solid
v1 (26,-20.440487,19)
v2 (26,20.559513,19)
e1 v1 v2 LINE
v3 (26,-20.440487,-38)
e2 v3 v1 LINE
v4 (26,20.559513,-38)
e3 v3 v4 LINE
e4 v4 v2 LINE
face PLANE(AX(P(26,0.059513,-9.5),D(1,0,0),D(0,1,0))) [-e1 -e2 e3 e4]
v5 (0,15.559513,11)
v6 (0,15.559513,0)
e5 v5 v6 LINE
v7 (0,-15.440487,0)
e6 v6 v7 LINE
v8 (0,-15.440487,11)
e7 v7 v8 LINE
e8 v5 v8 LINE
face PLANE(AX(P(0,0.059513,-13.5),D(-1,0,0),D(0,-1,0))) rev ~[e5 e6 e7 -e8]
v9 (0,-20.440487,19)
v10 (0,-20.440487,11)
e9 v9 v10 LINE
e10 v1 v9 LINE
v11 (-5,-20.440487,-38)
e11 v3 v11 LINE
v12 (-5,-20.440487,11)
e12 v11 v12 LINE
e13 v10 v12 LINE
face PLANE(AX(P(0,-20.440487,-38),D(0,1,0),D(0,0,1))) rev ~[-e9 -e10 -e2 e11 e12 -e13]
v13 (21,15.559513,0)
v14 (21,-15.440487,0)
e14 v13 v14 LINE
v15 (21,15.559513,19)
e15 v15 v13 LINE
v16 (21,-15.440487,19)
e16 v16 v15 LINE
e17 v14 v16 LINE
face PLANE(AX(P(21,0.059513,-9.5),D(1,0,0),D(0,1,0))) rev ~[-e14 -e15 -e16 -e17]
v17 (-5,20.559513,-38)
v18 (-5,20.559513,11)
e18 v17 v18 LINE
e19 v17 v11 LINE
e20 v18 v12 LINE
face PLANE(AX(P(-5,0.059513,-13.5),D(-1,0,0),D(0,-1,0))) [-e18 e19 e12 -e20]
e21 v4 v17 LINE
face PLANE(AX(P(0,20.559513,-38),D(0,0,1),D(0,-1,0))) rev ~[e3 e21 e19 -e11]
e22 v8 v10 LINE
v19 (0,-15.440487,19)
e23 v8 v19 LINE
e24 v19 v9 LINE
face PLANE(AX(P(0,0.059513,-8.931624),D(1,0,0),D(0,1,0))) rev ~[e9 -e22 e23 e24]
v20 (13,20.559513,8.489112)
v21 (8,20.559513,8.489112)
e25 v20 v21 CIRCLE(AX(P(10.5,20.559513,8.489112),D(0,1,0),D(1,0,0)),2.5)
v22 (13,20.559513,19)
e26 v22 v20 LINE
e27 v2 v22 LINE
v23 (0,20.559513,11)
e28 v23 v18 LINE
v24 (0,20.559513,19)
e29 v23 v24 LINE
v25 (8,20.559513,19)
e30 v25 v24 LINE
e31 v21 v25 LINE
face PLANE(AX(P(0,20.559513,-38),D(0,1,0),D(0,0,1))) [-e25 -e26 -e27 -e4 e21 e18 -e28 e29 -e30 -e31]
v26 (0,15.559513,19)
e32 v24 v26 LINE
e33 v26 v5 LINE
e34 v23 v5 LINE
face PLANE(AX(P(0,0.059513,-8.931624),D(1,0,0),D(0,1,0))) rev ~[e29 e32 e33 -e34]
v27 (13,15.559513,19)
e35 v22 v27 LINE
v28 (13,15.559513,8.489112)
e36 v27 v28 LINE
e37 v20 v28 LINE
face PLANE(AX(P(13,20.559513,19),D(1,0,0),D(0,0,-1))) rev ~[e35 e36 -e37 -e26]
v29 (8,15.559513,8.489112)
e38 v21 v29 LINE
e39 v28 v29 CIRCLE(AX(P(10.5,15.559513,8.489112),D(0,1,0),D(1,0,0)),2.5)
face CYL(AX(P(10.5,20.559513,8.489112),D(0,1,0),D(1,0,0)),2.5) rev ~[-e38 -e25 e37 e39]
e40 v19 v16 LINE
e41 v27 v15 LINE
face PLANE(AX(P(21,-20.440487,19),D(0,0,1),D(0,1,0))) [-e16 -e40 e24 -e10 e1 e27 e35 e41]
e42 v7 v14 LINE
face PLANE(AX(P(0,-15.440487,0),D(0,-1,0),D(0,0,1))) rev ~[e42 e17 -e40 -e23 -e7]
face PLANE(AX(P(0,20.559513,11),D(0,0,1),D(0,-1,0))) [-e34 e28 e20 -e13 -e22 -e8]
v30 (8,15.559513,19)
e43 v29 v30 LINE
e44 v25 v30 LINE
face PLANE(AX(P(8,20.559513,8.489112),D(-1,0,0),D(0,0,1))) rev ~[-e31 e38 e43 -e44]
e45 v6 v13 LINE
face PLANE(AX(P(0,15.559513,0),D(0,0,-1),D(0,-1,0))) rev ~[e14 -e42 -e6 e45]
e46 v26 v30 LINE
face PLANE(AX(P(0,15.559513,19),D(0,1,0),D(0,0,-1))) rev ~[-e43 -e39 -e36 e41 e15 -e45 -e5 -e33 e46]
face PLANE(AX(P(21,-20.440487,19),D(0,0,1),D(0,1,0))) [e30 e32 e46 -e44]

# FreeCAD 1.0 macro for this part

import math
import FreeCAD as App
import Part
import Sketcher
from FreeCAD import Vector
Q = App.Units.Quantity


def add_polygon(sketch, points):
    """Adds a closed chain of lines whose ends are joined by coincident constraints."""
    first, n = sketch.GeometryCount, len(points)
    for a, b in zip(points, points[1:] + points[:1]):
        sketch.addGeometry(Part.LineSegment(App.Vector(*a, 0), App.Vector(*b, 0)), False)
    for i in range(n):
        sketch.addConstraint(Sketcher.Constraint("Coincident", first + i, 2, first + (i + 1) % n, 1))

doc = App.newDocument("Part")
body = doc.addObject("PartDesign::Body", "Body")

# Sketch on YZ plane
sketch1 = body.newObject("Sketcher::SketchObject", "Sketch")
sketch1.AttachmentSupport = (doc.getObject("YZ_Plane"), [""])
sketch1.MapMode = "FlatFace"
add_polygon(sketch1, [(15.6, 19), (15.6, 0), (-15.4, 0), (-15.4, 19), (-20.4, 19), (-20.4, -38), (20.6, -38), (20.6, 19)])  # lines 0-7
sketch1.addConstraint([
    Sketcher.Constraint("Vertical", 0),
    Sketcher.Constraint("Horizontal", 1),
    Sketcher.Constraint("Vertical", 2),
    Sketcher.Constraint("Horizontal", 3),
    Sketcher.Constraint("Vertical", 4),
    Sketcher.Constraint("Horizontal", 5),
    Sketcher.Constraint("Vertical", 6),
    Sketcher.Constraint("Horizontal", 7),
    Sketcher.Constraint("PointOnObject", 0, 2, -1),
    Sketcher.Constraint("Horizontal", 3, 2, 6, 2),
    Sketcher.Constraint("Equal", 3, 7),
    Sketcher.Constraint("DistanceX", 1, 2, 1, 1, Q("31 mm")),
    Sketcher.Constraint("DistanceX", 3, 2, 3, 1, Q("5 mm")),
    Sketcher.Constraint("DistanceY", 0, 2, 0, 1, Q("19 mm")),
    Sketcher.Constraint("DistanceY", 4, 2, 4, 1, Q("57 mm")),
    Sketcher.Constraint("DistanceX", -1, 1, 0, 2, Q("15.559513 mm")),
])
pad1 = body.newObject("PartDesign::Pad", "Pad")
pad1.Profile = sketch1
pad1.Length = 21

# Sketch on YZ plane
sketch2 = body.newObject("Sketcher::SketchObject", "Sketch001")
sketch2.AttachmentSupport = (doc.getObject("YZ_Plane"), [""])
sketch2.MapMode = "FlatFace"
sketch2.AttachmentOffset = App.Placement(Vector(0, 0, 21), App.Rotation())
add_polygon(sketch2, [(-20, 19), (-20, -38), (21, -38), (21, 19)])  # lines 0-3
sketch2.addConstraint([
    Sketcher.Constraint("Vertical", 0),
    Sketcher.Constraint("Horizontal", 1),
    Sketcher.Constraint("Vertical", 2),
    Sketcher.Constraint("Horizontal", 3),
    Sketcher.Constraint("DistanceX", 1, 1, 1, 2, Q("41 mm")),
    Sketcher.Constraint("DistanceY", 0, 2, 0, 1, Q("57 mm")),
    Sketcher.Constraint("DistanceY", 0, 2, -1, 1, Q("38 mm")),
    Sketcher.Constraint("DistanceX", 0, 2, -1, 1, Q("20.440487 mm")),
])
pad2 = body.newObject("PartDesign::Pad", "Pad001")
pad2.Profile = sketch2
pad2.Length = 5

# Sketch on YZ plane
sketch3 = body.newObject("Sketcher::SketchObject", "Sketch002")
sketch3.AttachmentSupport = (doc.getObject("YZ_Plane"), [""])
sketch3.MapMode = "FlatFace"
add_polygon(sketch3, [(21, 11), (21, -38), (-20, -38), (-20, 11)])  # lines 0-3
sketch3.addConstraint([
    Sketcher.Constraint("Vertical", 0),
    Sketcher.Constraint("Horizontal", 1),
    Sketcher.Constraint("Vertical", 2),
    Sketcher.Constraint("Horizontal", 3),
    Sketcher.Constraint("DistanceX", 1, 2, 1, 1, Q("41 mm")),
    Sketcher.Constraint("DistanceY", 0, 2, 0, 1, Q("49 mm")),
    Sketcher.Constraint("DistanceY", 0, 2, -1, 1, Q("38 mm")),
    Sketcher.Constraint("DistanceX", -1, 1, 0, 2, Q("20.559513 mm")),
])
pad3 = body.newObject("PartDesign::Pad", "Pad002")
pad3.Profile = sketch3
pad3.Length = 5
pad3.Reversed = True

# Sketch on XZ plane
sketch4 = body.newObject("Sketcher::SketchObject", "Sketch003")
sketch4.AttachmentSupport = (doc.getObject("XZ_Plane"), [""])
sketch4.MapMode = "FlatFace"
sketch4.AttachmentOffset = App.Placement(Vector(0, 0, -20.559513), App.Rotation())
sketch4.addGeometry([
    Part.LineSegment(Vector(8, 8.5, 0), Vector(8, 19, 0)),
    Part.LineSegment(Vector(8, 19, 0), Vector(13, 19, 0)),
    Part.LineSegment(Vector(13, 19, 0), Vector(13, 8.5, 0)),
    Part.ArcOfCircle(Part.Circle(Vector(10.5, 8.5, 0), Vector(0, 0, 1), 2.5), math.radians(180), math.radians(360)),
], False)
sketch4.addConstraint([
    Sketcher.Constraint("Coincident", 0, 2, 1, 1),
    Sketcher.Constraint("Coincident", 1, 2, 2, 1),
    Sketcher.Constraint("Tangent", 2, 2, 3, 2),
    Sketcher.Constraint("Tangent", 3, 1, 0, 1),
    Sketcher.Constraint("Vertical", 0),
    Sketcher.Constraint("Horizontal", 1),
    Sketcher.Constraint("Vertical", 2),
    Sketcher.Constraint("Radius", 3, Q("2.5 mm")),
    Sketcher.Constraint("DistanceX", -1, 1, 0, 2, Q("8 mm")),
    Sketcher.Constraint("DistanceY", -1, 1, 0, 2, Q("19 mm")),
    Sketcher.Constraint("DistanceY", 0, 1, 0, 2, Q("10.510888 mm")),
])
pocket1 = body.newObject("PartDesign::Pocket", "Pocket")
pocket1.Profile = sketch4
pocket1.Length = 5
pocket1.Reversed = True

doc.recompute()
